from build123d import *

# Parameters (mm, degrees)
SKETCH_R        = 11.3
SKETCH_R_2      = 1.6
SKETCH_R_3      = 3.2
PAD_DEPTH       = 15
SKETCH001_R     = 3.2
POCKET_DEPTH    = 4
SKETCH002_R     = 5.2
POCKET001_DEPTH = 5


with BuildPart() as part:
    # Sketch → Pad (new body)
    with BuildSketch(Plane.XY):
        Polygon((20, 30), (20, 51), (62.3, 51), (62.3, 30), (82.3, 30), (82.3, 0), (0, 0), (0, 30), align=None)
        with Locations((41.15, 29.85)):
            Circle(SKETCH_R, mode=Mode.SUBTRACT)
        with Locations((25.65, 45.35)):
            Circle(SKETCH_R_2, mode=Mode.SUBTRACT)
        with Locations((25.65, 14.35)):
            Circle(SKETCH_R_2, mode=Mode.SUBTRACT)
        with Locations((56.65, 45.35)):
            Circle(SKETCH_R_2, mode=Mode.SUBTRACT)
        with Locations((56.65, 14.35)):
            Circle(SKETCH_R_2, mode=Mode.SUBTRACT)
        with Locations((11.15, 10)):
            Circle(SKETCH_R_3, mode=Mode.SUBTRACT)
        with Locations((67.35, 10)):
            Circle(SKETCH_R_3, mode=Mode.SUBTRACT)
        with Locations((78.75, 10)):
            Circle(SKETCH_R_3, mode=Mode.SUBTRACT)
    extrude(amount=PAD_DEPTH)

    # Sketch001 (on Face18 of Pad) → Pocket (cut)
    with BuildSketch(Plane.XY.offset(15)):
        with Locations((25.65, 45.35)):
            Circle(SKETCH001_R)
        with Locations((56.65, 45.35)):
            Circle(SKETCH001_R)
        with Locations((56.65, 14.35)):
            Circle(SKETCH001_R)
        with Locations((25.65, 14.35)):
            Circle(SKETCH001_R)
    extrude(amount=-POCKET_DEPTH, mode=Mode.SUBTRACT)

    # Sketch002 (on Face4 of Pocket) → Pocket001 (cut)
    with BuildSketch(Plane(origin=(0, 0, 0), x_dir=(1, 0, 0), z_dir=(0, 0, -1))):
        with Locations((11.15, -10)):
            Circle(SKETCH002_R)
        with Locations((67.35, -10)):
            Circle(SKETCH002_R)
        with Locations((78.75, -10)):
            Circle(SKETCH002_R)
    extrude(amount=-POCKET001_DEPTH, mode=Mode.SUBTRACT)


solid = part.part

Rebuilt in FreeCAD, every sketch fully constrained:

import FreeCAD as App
import Part
import Sketcher
from FreeCAD import Vector


def add_polygon(sketch, points):
    """Adds a closed chain of lines whose ends are joined by coincident constraints."""
    first, n = sketch.GeometryCount, len(points)
    for a, b in zip(points, points[1:] + points[:1]):
        sketch.addGeometry(Part.LineSegment(App.Vector(*a, 0), App.Vector(*b, 0)), False)
    for i in range(n):
        sketch.addConstraint(Sketcher.Constraint("Coincident", first + i, 2, first + (i + 1) % n, 1))

doc = App.newDocument("Part")
body = doc.addObject("PartDesign::Body", "Body")

# Sketch on XY plane
sketch1 = body.newObject("Sketcher::SketchObject", "Sketch")
sketch1.AttachmentSupport = (doc.getObject("XY_Plane"), [""])
sketch1.MapMode = "FlatFace"
add_polygon(sketch1, [(20, 51), (20, 30), (0, 30), (0, 0), (82.3, 0), (82.3, 30), (62.3, 30), (62.3, 51)])  # lines 0-7
sketch1.addGeometry(Part.Circle(Vector(78.8, 10, 0), Vector(0, 0, 1), 3.2), False)  # 8
sketch1.addGeometry(Part.Circle(Vector(67.3, 10, 0), Vector(0, 0, 1), 3.2), False)  # 9
sketch1.addGeometry(Part.Circle(Vector(56.6, 14.3, 0), Vector(0, 0, 1), 1.6), False)  # 10
sketch1.addGeometry(Part.Circle(Vector(11.2, 10, 0), Vector(0, 0, 1), 3.2), False)  # 11
sketch1.addGeometry(Part.Circle(Vector(25.6, 14.3, 0), Vector(0, 0, 1), 1.6), False)  # 12
sketch1.addGeometry(Part.Circle(Vector(56.6, 45.4, 0), Vector(0, 0, 1), 1.6), False)  # 13
sketch1.addGeometry(Part.Circle(Vector(41.1, 29.9, 0), Vector(0, 0, 1), 11.3), False)  # 14
sketch1.addGeometry(Part.Circle(Vector(25.6, 45.4, 0), Vector(0, 0, 1), 1.6), False)  # 15
sketch1.addConstraint([
    Sketcher.Constraint("Vertical", 0),
    Sketcher.Constraint("Horizontal", 1),
    Sketcher.Constraint("Vertical", 2),
    Sketcher.Constraint("Horizontal", 3),
    Sketcher.Constraint("Vertical", 4),
    Sketcher.Constraint("Horizontal", 5),
    Sketcher.Constraint("Vertical", 6),
    Sketcher.Constraint("Horizontal", 7),
    Sketcher.Constraint("Coincident", 2, 2, -1, 1),
    Sketcher.Constraint("Equal", 8, 9),
    Sketcher.Constraint("Equal", 9, 11),
    Sketcher.Constraint("Equal", 10, 12),
    Sketcher.Constraint("Equal", 12, 13),
    Sketcher.Constraint("Equal", 13, 15),
    Sketcher.Constraint("Horizontal", 8, 3, 9, 3),
    Sketcher.Constraint("Horizontal", 9, 3, 11, 3),
    Sketcher.Constraint("Horizontal", 10, 3, 12, 3),
    Sketcher.Constraint("Horizontal", 13, 3, 15, 3),
    Sketcher.Constraint("Horizontal", 1, 2, 4, 2),
    Sketcher.Constraint("Vertical", 10, 3, 13, 3),
    Sketcher.Constraint("Vertical", 12, 3, 15, 3),
    Sketcher.Constraint("Equal", 1, 5),
    Sketcher.Constraint("Diameter", 8, 6.4),
    Sketcher.Constraint("Diameter", 10, 3.2),
    Sketcher.Constraint("Diameter", 14, 22.6),
    Sketcher.Constraint("DistanceX", 1, 2, 1, 1, 20.0),
    Sketcher.Constraint("DistanceY", 0, 2, 0, 1, 21.0),
    Sketcher.Constraint("DistanceY", 2, 2, 2, 1, 30.0),
    Sketcher.Constraint("DistanceX", 3, 1, 3, 2, 82.3),
    Sketcher.Constraint("DistanceY", -1, 1, 8, 3, 10.0),
    Sketcher.Constraint("DistanceX", 12, 3, 10, 3, 31.0),
    Sketcher.Constraint("DistanceY", 10, 3, 13, 3, 31.0),
    Sketcher.Constraint("DistanceX", 11, 3, 14, 3, 30.0),
    Sketcher.Constraint("DistanceX", 9, 3, 8, 3, 11.4),
    Sketcher.Constraint("DistanceX", 10, 3, 9, 3, 10.7),
    Sketcher.Constraint("DistanceX", 11, 3, 10, 3, 45.5),
    Sketcher.Constraint("DistanceY", 14, 3, 13, 3, 15.5),
    Sketcher.Constraint("DistanceX", -1, 1, 8, 3, 78.75),
    Sketcher.Constraint("DistanceY", -1, 1, 10, 3, 14.35),
])
pad1 = body.newObject("PartDesign::Pad", "Pad")
pad1.Profile = sketch1
pad1.Length = 15

# Sketch on XY plane
sketch2 = body.newObject("Sketcher::SketchObject", "Sketch001")
sketch2.AttachmentSupport = (doc.getObject("XY_Plane"), [""])
sketch2.MapMode = "FlatFace"
sketch2.AttachmentOffset = App.Placement(Vector(0, 0, 15), App.Rotation())
sketch2.addGeometry([
    Part.Circle(Vector(25.6, 45.4, 0), Vector(0, 0, 1), 3.2),
    Part.Circle(Vector(56.6, 45.4, 0), Vector(0, 0, 1), 3.2),
    Part.Circle(Vector(56.6, 14.3, 0), Vector(0, 0, 1), 3.2),
    Part.Circle(Vector(25.6, 14.3, 0), Vector(0, 0, 1), 3.2),
], False)
sketch2.addConstraint([
    Sketcher.Constraint("Equal", 0, 1),
    Sketcher.Constraint("Equal", 1, 2),
    Sketcher.Constraint("Equal", 2, 3),
    Sketcher.Constraint("Horizontal", 0, 3, 1, 3),
    Sketcher.Constraint("Horizontal", 2, 3, 3, 3),
    Sketcher.Constraint("Vertical", 1, 3, 2, 3),
    Sketcher.Constraint("Vertical", 0, 3, 3, 3),
    Sketcher.Constraint("Diameter", 0, 6.4),
    Sketcher.Constraint("DistanceX", 0, 3, 1, 3, 31.0),
    Sketcher.Constraint("DistanceY", 2, 3, 1, 3, 31.0),
    Sketcher.Constraint("DistanceX", -1, 1, 0, 3, 25.65),
    Sketcher.Constraint("DistanceY", -1, 1, 0, 3, 45.35),
])
pocket1 = body.newObject("PartDesign::Pocket", "Pocket")
pocket1.Profile = sketch2
pocket1.Length = 4

# Sketch on XY plane
sketch3 = body.newObject("Sketcher::SketchObject", "Sketch002")
sketch3.AttachmentSupport = (doc.getObject("XY_Plane"), [""])
sketch3.MapMode = "FlatFace"
sketch3.addGeometry([
    Part.Circle(Vector(11, 10, 0), Vector(0, 0, 1), 5),
    Part.Circle(Vector(67, 10, 0), Vector(0, 0, 1), 5),
    Part.Circle(Vector(79, 10, 0), Vector(0, 0, 1), 5),
], False)
sketch3.addConstraint([
    Sketcher.Constraint("Equal", 0, 1),
    Sketcher.Constraint("Equal", 1, 2),
    Sketcher.Constraint("Horizontal", 0, 3, 1, 3),
    Sketcher.Constraint("Horizontal", 1, 3, 2, 3),
    Sketcher.Constraint("Diameter", 0, 10.4),
    Sketcher.Constraint("DistanceY", -1, 1, 0, 3, 10.0),
    Sketcher.Constraint("DistanceX", 0, 3, 1, 3, 56.2),
    Sketcher.Constraint("DistanceX", 1, 3, 2, 3, 11.4),
    Sketcher.Constraint("DistanceX", -1, 1, 0, 3, 11.15),
])
pocket2 = body.newObject("PartDesign::Pocket", "Pocket001")
pocket2.Profile = sketch3
pocket2.Length = 5
pocket2.Reversed = True

doc.recompute()
